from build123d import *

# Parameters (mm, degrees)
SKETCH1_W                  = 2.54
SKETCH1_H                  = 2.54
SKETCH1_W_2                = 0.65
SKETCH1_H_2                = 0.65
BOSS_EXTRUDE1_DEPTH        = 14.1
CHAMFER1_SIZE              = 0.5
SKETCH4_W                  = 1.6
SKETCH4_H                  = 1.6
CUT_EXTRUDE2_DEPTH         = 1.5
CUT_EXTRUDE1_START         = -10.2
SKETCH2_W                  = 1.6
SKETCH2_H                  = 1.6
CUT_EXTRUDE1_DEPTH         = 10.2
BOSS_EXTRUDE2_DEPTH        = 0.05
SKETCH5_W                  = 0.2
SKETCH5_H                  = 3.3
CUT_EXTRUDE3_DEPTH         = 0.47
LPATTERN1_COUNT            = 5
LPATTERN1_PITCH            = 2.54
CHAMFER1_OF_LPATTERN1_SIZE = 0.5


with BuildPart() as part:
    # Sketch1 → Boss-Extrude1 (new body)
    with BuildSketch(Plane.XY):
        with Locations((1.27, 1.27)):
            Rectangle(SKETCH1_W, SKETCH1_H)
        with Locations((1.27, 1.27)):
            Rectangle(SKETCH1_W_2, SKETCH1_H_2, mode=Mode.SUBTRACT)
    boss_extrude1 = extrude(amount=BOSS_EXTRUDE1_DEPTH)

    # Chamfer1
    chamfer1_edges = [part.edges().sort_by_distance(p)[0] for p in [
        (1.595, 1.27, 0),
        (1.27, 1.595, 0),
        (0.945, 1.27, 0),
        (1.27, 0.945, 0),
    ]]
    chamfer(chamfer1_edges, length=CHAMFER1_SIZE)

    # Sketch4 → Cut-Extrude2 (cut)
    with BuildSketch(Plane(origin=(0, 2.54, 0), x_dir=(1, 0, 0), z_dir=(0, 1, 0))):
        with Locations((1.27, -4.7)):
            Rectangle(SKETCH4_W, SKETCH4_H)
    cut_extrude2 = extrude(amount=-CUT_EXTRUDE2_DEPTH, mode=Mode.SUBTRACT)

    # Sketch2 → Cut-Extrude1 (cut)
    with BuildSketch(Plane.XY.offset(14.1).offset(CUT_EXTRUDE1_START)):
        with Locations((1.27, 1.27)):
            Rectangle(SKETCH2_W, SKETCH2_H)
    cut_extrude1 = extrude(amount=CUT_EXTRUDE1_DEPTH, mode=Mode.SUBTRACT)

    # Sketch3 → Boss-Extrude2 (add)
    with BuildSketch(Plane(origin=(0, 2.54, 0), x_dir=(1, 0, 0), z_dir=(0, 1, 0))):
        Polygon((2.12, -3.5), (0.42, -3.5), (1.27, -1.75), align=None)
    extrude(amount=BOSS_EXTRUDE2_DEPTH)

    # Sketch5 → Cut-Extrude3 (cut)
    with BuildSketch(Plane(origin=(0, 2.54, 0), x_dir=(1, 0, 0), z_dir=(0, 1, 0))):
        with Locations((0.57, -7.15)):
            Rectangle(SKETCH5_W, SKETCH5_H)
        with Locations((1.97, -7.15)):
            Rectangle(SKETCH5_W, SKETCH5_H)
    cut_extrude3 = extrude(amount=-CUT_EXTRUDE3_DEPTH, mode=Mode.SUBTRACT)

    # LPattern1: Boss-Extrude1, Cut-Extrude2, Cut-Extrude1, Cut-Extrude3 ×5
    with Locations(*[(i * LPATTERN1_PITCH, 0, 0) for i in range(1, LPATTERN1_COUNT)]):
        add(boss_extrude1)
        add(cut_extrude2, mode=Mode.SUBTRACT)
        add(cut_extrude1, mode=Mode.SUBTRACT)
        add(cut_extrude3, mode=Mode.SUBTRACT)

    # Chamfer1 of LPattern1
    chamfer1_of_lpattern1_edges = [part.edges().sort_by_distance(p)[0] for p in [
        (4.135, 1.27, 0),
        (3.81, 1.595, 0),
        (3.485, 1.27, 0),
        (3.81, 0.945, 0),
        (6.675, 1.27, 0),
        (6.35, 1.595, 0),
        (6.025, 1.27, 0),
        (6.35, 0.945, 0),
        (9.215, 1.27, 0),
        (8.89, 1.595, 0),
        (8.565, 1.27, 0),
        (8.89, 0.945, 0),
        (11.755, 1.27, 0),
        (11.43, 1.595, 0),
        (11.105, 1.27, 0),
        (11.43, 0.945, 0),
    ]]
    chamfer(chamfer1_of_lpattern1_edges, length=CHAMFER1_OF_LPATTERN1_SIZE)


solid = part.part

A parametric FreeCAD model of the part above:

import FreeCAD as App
import Part
import Sketcher

V = App.Vector


def edges_at(feature, points):
    """Names of the edges that pass closest to the given points."""
    edges = feature.Shape.Edges
    near = lambda p: min(range(len(edges)), key=lambda i: edges[i].distToShape(Part.Vertex(*p))[0])
    return sorted({f"Edge{near(p) + 1}" for p in points})


def add_polygon(sketch, points):
    """Adds a closed chain of lines whose ends are joined by coincident constraints."""
    first, n = sketch.GeometryCount, len(points)
    for a, b in zip(points, points[1:] + points[:1]):
        sketch.addGeometry(Part.LineSegment(App.Vector(*a, 0), App.Vector(*b, 0)), False)
    for i in range(n):
        sketch.addConstraint(Sketcher.Constraint("Coincident", first + i, 2, first + (i + 1) % n, 1))

doc = App.newDocument("Part")
body = doc.addObject("PartDesign::Body", "Body")

# Sketch on XY plane
sketch1 = doc.addObject("Sketcher::SketchObject", "Sketch")
body.addObject(sketch1)
sketch1.AttachmentSupport = (doc.XY_Plane, [""])
sketch1.MapMode = "FlatFace"
add_polygon(sketch1, [(0, 2.5), (0, 0), (2.5, 0), (2.5, 2.5)])  # lines 0-3
add_polygon(sketch1, [(1.6, 0.9), (0.9, 0.9), (0.9, 1.6), (1.6, 1.6)])  # lines 4-7
sketch1.addConstraint([
    Sketcher.Constraint("Vertical", 0),
    Sketcher.Constraint("Horizontal", 1),
    Sketcher.Constraint("Vertical", 2),
    Sketcher.Constraint("Horizontal", 3),
    Sketcher.Constraint("Horizontal", 4),
    Sketcher.Constraint("Vertical", 5),
    Sketcher.Constraint("Horizontal", 6),
    Sketcher.Constraint("Vertical", 7),
    Sketcher.Constraint("Coincident", 0, 2, -1, 1),
    Sketcher.Constraint("Equal", 3, 0),
    Sketcher.Constraint("Equal", 6, 5),
    Sketcher.Constraint("DistanceX", 1, 1, 1, 2, 2.54),
    Sketcher.Constraint("DistanceX", 4, 2, 4, 1, 0.65),
    Sketcher.Constraint("DistanceX", -1, 1, 4, 2, 0.945),
    Sketcher.Constraint("DistanceY", -1, 1, 4, 2, 0.945),
])
pad1 = doc.addObject("PartDesign::Pad", "Pad")
body.addObject(pad1)
pad1.Profile = sketch1
pad1.Length = 14.1
doc.recompute()

chamfer = doc.addObject("PartDesign::Chamfer", "Chamfer")
body.addObject(chamfer)
chamfer.Base = (pad1, edges_at(pad1, [
    (1.595, 1.27, 0),
    (1.27, 1.595, 0),
    (0.945, 1.27, 0),
    (1.27, 0.945, 0),
]))
chamfer.Size = 0.5

# Sketch on XZ plane
sketch2 = doc.addObject("Sketcher::SketchObject", "Sketch001")
body.addObject(sketch2)
sketch2.AttachmentSupport = (doc.XZ_Plane, [""])
sketch2.MapMode = "FlatFace"
sketch2.AttachmentOffset = App.Placement(V(0, 0, -2.54), App.Rotation())
add_polygon(sketch2, [(0.5, 3.9), (0.5, 5.5), (2.1, 5.5), (2.1, 3.9)])  # lines 0-3
sketch2.addConstraint([
    Sketcher.Constraint("Vertical", 0),
    Sketcher.Constraint("Horizontal", 1),
    Sketcher.Constraint("Vertical", 2),
    Sketcher.Constraint("Horizontal", 3),
    Sketcher.Constraint("Equal", 3, 0),
    Sketcher.Constraint("DistanceX", 1, 1, 1, 2, 1.6),
    Sketcher.Constraint("DistanceY", -1, 1, 0, 2, 5.5),
    Sketcher.Constraint("DistanceX", -1, 1, 0, 2, 0.47),
])
pocket1 = doc.addObject("PartDesign::Pocket", "Pocket")
body.addObject(pocket1)
pocket1.Profile = sketch2
pocket1.Length = 1.5
pocket1.Reversed = True

# Sketch on XY plane
sketch3 = doc.addObject("Sketcher::SketchObject", "Sketch002")
body.addObject(sketch3)
sketch3.AttachmentSupport = (doc.XY_Plane, [""])
sketch3.MapMode = "FlatFace"
sketch3.AttachmentOffset = App.Placement(V(0, 0, 3.9), App.Rotation())
add_polygon(sketch3, [(0.5, 2.1), (0.5, 0.5), (2.1, 0.5), (2.1, 2.1)])  # lines 0-3
sketch3.addConstraint([
    Sketcher.Constraint("Vertical", 0),
    Sketcher.Constraint("Horizontal", 1),
    Sketcher.Constraint("Vertical", 2),
    Sketcher.Constraint("Horizontal", 3),
    Sketcher.Constraint("Equal", 3, 0),
    Sketcher.Constraint("DistanceX", 1, 1, 1, 2, 1.6),
    Sketcher.Constraint("DistanceX", -1, 1, 0, 2, 0.47),
    Sketcher.Constraint("DistanceY", -1, 1, 0, 2, 0.47),
])
pocket2 = doc.addObject("PartDesign::Pocket", "Pocket001")
body.addObject(pocket2)
pocket2.Profile = sketch3
pocket2.Length = 10.2
pocket2.Reversed = True

# Sketch on XZ plane
sketch4 = doc.addObject("Sketcher::SketchObject", "Sketch003")
body.addObject(sketch4)
sketch4.AttachmentSupport = (doc.XZ_Plane, [""])
sketch4.MapMode = "FlatFace"
sketch4.AttachmentOffset = App.Placement(V(0, 0, -2.54), App.Rotation())
add_polygon(sketch4, [(0.4, 3.5), (2.1, 3.5), (1.3, 1.8)])  # lines 0-2
sketch4.addConstraint([
    Sketcher.Constraint("Horizontal", 0),
    Sketcher.Constraint("Equal", 1, 2),
    Sketcher.Constraint("DistanceX", 0, 1, 0, 2, 1.7),
    Sketcher.Constraint("DistanceY", -1, 1, 0, 2, 3.5),
    Sketcher.Constraint("DistanceX", -1, 1, 0, 2, 2.12),
    Sketcher.Constraint("DistanceY", -1, 1, 1, 2, 1.75),
])
pad2 = doc.addObject("PartDesign::Pad", "Pad001")
body.addObject(pad2)
pad2.Profile = sketch4
pad2.Length = 0.05
pad2.Reversed = True

# Sketch on XZ plane
sketch5 = doc.addObject("Sketcher::SketchObject", "Sketch004")
body.addObject(sketch5)
sketch5.AttachmentSupport = (doc.XZ_Plane, [""])
sketch5.MapMode = "FlatFace"
sketch5.AttachmentOffset = App.Placement(V(0, 0, -2.54), App.Rotation())
add_polygon(sketch5, [(0.47, 5.5), (0.47, 8.8), (0.67, 8.8), (0.67, 5.5)])  # lines 0-3
add_polygon(sketch5, [(1.87, 5.5), (1.87, 8.8), (2.07, 8.8), (2.07, 5.5)])  # lines 4-7
sketch5.addConstraint([
    Sketcher.Constraint("Vertical", 0),
    Sketcher.Constraint("Horizontal", 1),
    Sketcher.Constraint("Vertical", 2),
    Sketcher.Constraint("Horizontal", 3),
    Sketcher.Constraint("Vertical", 4),
    Sketcher.Constraint("Horizontal", 5),
    Sketcher.Constraint("Vertical", 6),
    Sketcher.Constraint("Horizontal", 7),
    Sketcher.Constraint("Horizontal", 1, 2, 4, 2),
    Sketcher.Constraint("Horizontal", 3, 2, 6, 2),
    Sketcher.Constraint("Equal", 3, 5),
    Sketcher.Constraint("DistanceX", 1, 1, 1, 2, 0.2),
    Sketcher.Constraint("DistanceY", 0, 1, 0, 2, 3.3),
    Sketcher.Constraint("DistanceY", -1, 1, 0, 2, 8.8),
    Sketcher.Constraint("DistanceX", 1, 2, 4, 2, 1.2),
    Sketcher.Constraint("DistanceX", -1, 1, 0, 2, 0.47),
])
pocket3 = doc.addObject("PartDesign::Pocket", "Pocket002")
body.addObject(pocket3)
pocket3.Profile = sketch5
pocket3.Length = 0.47
pocket3.Reversed = True
doc.recompute()

linearpattern = doc.addObject("PartDesign::LinearPattern", "LinearPattern")
body.addObject(linearpattern)
linearpattern.Originals = [pad1, pocket1, pocket2, pocket3]
linearpattern.Direction = (doc.X_Axis, [""])
linearpattern.Mode = "offset"
linearpattern.Offset = 2.54
linearpattern.Occurrences = 5
body.Tip = linearpattern
doc.recompute()

chamfer2 = doc.addObject("PartDesign::Chamfer", "Chamfer001")
body.addObject(chamfer2)
chamfer2.Base = (linearpattern, edges_at(linearpattern, [
    (4.135, 1.27, 0),
    (3.81, 1.595, 0),
    (3.485, 1.27, 0),
    (3.81, 0.945, 0),
    (6.675, 1.27, 0),
    (6.35, 1.595, 0),
    (6.025, 1.27, 0),
    (6.35, 0.945, 0),
    (9.215, 1.27, 0),
    (8.89, 1.595, 0),
    (8.565, 1.27, 0),
    (8.89, 0.945, 0),
    (11.755, 1.27, 0),
    (11.43, 1.595, 0),
    (11.105, 1.27, 0),
    (11.43, 0.945, 0),
]))
chamfer2.Size = 0.5

doc.recompute()
